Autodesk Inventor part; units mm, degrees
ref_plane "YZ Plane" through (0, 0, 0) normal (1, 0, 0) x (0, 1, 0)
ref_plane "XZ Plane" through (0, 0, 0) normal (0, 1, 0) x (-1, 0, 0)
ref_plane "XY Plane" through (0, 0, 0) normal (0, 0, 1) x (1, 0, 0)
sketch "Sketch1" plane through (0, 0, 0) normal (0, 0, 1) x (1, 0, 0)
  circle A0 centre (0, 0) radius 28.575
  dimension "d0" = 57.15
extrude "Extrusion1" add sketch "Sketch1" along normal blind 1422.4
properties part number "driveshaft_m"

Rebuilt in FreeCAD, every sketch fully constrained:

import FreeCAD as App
import Part
import Sketcher
Q = App.Units.Quantity

doc = App.newDocument("Part")
params = doc.addObject("Spreadsheet::Sheet", "Params")
for row, (alias, value) in enumerate([
    ("sketch1_diameter", "2.25 in"),
    ("pad1_length", "56 in"),
], start=1):
    params.set(f"A{row}", alias)
    params.set(f"B{row}", "=" + value)
    params.setAlias(f"B{row}", alias)

body = doc.addObject("PartDesign::Body", "Body")

# Sketch on XY plane
sketch1 = body.newObject("Sketcher::SketchObject", "Sketch")
sketch1.AttachmentSupport = (doc.getObject("XY_Plane"), [""])
sketch1.MapMode = "FlatFace"
sketch1.addGeometry(Part.Circle(App.Vector(0, 0, 0), App.Vector(0, 0, 1), 29), False)
sketch1.addConstraint([
    Sketcher.Constraint("Coincident", 0, 3, -1, 1),
    Sketcher.Constraint("Diameter", 0, Q("2.25 in")),
])
sketch1.setExpression("Constraints[1]", "Params.sketch1_diameter")
pad1 = body.newObject("PartDesign::Pad", "Pad")
pad1.Profile = sketch1
pad1.setExpression("Length", "Params.pad1_length")

doc.recompute()
